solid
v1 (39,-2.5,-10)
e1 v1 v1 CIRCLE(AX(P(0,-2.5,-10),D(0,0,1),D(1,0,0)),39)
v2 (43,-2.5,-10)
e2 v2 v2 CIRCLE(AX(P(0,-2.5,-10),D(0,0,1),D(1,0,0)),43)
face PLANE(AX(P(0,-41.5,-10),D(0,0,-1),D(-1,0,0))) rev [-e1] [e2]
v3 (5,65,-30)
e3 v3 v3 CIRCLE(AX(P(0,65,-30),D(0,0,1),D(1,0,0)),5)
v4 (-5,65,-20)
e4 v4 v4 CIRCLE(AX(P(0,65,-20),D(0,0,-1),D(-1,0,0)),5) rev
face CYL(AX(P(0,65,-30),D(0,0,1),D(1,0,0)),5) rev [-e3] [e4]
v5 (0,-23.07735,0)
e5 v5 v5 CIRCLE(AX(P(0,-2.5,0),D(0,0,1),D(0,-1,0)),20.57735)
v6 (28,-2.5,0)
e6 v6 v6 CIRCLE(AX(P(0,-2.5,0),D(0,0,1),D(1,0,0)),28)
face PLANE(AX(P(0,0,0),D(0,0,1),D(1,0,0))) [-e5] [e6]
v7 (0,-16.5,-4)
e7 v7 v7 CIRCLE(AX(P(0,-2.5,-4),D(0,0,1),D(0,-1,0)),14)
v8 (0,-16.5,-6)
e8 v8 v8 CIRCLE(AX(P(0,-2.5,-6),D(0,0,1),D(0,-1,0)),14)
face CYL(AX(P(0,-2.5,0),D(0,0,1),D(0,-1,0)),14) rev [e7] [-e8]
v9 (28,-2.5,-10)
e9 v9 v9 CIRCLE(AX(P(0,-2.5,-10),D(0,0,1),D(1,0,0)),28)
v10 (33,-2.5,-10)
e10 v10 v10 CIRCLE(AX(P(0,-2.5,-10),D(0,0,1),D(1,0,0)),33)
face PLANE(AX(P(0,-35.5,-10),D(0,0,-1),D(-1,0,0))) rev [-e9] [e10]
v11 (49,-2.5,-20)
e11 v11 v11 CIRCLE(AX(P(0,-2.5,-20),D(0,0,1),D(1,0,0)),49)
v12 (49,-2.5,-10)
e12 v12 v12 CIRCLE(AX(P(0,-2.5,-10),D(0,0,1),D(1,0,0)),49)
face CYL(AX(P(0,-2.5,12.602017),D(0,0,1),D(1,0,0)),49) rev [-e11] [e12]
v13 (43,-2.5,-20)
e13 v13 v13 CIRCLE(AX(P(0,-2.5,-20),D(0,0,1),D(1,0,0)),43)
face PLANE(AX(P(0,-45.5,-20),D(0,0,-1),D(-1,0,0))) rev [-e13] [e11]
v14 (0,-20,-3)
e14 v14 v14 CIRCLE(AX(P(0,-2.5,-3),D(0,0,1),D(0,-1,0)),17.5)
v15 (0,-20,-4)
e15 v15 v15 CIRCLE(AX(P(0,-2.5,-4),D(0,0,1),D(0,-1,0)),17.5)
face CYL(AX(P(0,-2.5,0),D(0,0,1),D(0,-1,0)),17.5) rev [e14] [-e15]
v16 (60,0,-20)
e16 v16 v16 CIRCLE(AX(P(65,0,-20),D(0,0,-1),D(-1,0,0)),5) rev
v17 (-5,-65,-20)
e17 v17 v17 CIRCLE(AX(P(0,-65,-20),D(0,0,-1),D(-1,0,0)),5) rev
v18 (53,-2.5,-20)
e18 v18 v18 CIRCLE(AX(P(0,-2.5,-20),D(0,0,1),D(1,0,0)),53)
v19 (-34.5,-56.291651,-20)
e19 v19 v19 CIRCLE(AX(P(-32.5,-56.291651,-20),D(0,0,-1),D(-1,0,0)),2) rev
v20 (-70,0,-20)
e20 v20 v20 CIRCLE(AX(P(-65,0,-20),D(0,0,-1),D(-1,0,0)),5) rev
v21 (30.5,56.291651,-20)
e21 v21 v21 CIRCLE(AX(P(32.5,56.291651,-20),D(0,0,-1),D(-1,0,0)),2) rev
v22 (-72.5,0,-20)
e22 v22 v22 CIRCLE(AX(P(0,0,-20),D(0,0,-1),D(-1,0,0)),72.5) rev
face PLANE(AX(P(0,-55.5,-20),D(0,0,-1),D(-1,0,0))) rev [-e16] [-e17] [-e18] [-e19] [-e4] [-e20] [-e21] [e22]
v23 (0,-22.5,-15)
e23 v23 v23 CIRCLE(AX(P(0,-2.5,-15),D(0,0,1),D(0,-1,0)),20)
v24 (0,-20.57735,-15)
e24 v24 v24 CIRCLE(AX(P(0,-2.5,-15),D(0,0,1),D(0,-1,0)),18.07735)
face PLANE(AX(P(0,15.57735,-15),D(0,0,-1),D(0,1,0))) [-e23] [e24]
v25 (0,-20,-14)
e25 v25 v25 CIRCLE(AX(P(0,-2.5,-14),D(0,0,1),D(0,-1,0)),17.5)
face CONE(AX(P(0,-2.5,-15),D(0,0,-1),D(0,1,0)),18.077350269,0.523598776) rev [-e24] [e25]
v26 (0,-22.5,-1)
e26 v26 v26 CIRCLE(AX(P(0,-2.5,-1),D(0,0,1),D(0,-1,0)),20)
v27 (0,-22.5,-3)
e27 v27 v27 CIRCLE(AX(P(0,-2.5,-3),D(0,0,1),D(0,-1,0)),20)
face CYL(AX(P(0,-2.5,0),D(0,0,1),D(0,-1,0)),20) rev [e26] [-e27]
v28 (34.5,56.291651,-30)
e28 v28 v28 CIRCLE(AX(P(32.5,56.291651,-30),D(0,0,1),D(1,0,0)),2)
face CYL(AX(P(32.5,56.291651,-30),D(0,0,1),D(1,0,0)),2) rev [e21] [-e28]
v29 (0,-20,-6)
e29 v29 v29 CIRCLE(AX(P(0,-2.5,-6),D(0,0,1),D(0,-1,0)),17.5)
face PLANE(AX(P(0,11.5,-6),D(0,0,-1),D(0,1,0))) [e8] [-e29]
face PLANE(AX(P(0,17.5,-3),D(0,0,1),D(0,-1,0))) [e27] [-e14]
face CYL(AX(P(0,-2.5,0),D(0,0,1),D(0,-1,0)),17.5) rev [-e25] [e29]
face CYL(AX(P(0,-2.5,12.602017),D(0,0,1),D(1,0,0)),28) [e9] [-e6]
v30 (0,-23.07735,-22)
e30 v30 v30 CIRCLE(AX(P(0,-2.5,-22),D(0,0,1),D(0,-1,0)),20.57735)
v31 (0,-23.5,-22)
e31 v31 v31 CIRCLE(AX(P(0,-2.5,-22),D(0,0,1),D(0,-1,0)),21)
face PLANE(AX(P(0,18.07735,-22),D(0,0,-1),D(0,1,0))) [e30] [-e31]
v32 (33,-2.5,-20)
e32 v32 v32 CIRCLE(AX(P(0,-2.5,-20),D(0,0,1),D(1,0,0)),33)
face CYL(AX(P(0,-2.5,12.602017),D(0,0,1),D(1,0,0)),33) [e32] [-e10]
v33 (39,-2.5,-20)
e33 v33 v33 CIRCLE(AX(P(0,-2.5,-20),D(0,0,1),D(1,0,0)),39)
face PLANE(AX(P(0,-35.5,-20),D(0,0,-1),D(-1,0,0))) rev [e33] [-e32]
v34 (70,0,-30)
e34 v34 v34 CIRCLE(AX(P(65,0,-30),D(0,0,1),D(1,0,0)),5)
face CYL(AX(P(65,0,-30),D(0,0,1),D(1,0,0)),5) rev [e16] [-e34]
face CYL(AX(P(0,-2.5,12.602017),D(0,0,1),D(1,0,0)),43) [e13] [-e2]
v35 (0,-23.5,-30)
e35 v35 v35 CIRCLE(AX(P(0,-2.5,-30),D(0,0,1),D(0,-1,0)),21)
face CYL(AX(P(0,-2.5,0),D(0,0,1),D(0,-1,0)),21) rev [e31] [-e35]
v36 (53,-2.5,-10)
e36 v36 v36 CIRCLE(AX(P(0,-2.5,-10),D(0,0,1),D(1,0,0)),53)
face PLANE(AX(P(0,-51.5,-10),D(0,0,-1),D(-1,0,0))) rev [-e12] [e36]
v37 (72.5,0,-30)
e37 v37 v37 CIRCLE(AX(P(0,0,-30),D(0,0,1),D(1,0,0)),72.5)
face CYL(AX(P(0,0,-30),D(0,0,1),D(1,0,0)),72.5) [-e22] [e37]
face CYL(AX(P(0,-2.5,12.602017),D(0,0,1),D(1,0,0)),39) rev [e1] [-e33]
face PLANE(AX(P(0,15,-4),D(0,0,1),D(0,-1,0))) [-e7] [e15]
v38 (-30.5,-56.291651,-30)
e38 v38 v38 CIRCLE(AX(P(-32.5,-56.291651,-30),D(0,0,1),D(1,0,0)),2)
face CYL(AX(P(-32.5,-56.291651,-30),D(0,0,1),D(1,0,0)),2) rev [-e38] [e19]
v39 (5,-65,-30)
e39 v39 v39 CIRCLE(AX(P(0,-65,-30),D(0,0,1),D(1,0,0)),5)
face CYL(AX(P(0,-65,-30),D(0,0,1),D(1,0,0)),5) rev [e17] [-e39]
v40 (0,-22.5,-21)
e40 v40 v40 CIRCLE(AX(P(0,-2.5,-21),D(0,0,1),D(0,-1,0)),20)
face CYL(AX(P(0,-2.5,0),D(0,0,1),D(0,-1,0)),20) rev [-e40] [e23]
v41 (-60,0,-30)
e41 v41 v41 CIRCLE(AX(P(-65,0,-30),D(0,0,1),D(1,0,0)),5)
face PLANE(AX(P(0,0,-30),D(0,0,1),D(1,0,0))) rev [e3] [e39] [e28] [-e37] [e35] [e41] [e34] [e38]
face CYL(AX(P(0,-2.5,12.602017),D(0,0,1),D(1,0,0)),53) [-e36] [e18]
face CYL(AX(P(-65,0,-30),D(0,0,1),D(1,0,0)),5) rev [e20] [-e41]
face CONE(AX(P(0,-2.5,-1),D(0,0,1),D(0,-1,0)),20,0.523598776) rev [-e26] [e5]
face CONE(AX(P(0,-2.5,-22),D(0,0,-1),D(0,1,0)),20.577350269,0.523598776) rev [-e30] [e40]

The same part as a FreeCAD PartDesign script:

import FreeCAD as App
import Part
import Sketcher
Q = App.Units.Quantity


def add_polygon(sketch, points):
    """Adds a closed chain of lines whose ends are joined by coincident constraints."""
    first, n = sketch.GeometryCount, len(points)
    for a, b in zip(points, points[1:] + points[:1]):
        sketch.addGeometry(Part.LineSegment(App.Vector(*a, 0), App.Vector(*b, 0)), False)
    for i in range(n):
        sketch.addConstraint(Sketcher.Constraint("Coincident", first + i, 2, first + (i + 1) % n, 1))

doc = App.newDocument("Part")
params = doc.addObject("Spreadsheet::Sheet", "Params")
for row, (alias, value) in enumerate([
    ("sketch1_diameter", "145 mm"),
    ("sketch1_diameter2", "4 mm"),
    ("sketch1_diameter3", "10 mm"),
    ("pad1_length", "30 mm"),
    ("sketch2_width", "21 mm"),
    ("sketch2_height", "8 mm"),
    ("sketch2_height2", "2 mm"),
    ("sketch2_height3", "1 mm"),
    ("sketch2_height4", "30 mm"),
    ("groove_angle", "360 deg"),
    ("sketch3_width", "4 mm"),
    ("sketch3_width2", "6 mm"),
    ("sketch3_width3", "5 mm"),
    ("sketch3_width4", "52 mm"),
    ("sketch3_height", "10 mm"),
    ("groove2_angle", "360 deg"),
], start=1):
    params.set(f"A{row}", alias)
    params.set(f"B{row}", "=" + value)
    params.setAlias(f"B{row}", alias)

body = doc.addObject("PartDesign::Body", "Body")

sketch1 = body.newObject("Sketcher::SketchObject", "Sketch")
sketch1.AttachmentSupport = (doc.getObject("XY_Plane"), [""])
sketch1.MapMode = "FlatFace"
sketch1.addGeometry([
    Part.Circle(App.Vector(0, 0, 0), App.Vector(0, 0, 1), 72.5),
    Part.Circle(App.Vector(-32.5, -56.3, 0), App.Vector(0, 0, 1), 2),
    Part.Circle(App.Vector(0, -65, 0), App.Vector(0, 0, 1), 5),
    Part.Circle(App.Vector(-65, 0, 0), App.Vector(0, 0, 1), 5),
    Part.Circle(App.Vector(65, 0, 0), App.Vector(0, 0, 1), 5),
    Part.Circle(App.Vector(0, 65, 0), App.Vector(0, 0, 1), 5),
    Part.Circle(App.Vector(32.5, 56.3, 0), App.Vector(0, 0, 1), 2),
], False)
sketch1.addConstraint([
    Sketcher.Constraint("Coincident", 0, 3, -1, 1),
    Sketcher.Constraint("Equal", 2, 3),
    Sketcher.Constraint("Equal", 3, 4),
    Sketcher.Constraint("Equal", 4, 5),
    Sketcher.Constraint("Equal", 1, 6),
    Sketcher.Constraint("Symmetric", 3, 3, 4, 3, -1, 1),
    Sketcher.Constraint("Symmetric", 2, 3, 5, 3, -1, 1),
    Sketcher.Constraint("Symmetric", 1, 3, 6, 3, -1, 1),
    Sketcher.Constraint("PointOnObject", 2, 3, -2),
    Sketcher.Constraint("PointOnObject", 3, 3, -1),
    Sketcher.Constraint("Diameter", 0, Q("145 mm")),
    Sketcher.Constraint("Diameter", 1, Q("4 mm")),
    Sketcher.Constraint("Diameter", 2, Q("10 mm")),
    Sketcher.Constraint("DistanceY", 2, 3, -1, 1, Q("65 mm")),
    Sketcher.Constraint("DistanceX", 3, 3, -1, 1, Q("65 mm")),
    Sketcher.Constraint("DistanceX", 1, 3, -1, 1, Q("32.5 mm")),
    Sketcher.Constraint("DistanceY", 1, 3, -1, 1, Q("56.291651 mm")),
])
sketch1.setExpression("Constraints[10]", "Params.sketch1_diameter")
sketch1.setExpression("Constraints[11]", "Params.sketch1_diameter2")
sketch1.setExpression("Constraints[12]", "Params.sketch1_diameter3")
pad1 = body.newObject("PartDesign::Pad", "Pad")
pad1.Profile = sketch1
pad1.setExpression("Length", "Params.pad1_length")
pad1.Reversed = True

sketch2 = body.newObject("Sketcher::SketchObject", "Sketch001")
sketch2.AttachmentSupport = (doc.getObject("YZ_Plane"), [""])
sketch2.MapMode = "FlatFace"
add_polygon(sketch2, [(15.58, -15), (15, -14), (15, -6), (11.5, -6), (11.5, -4), (15, -4), (15, -3), (17.5, -3), (17.5, -1), (18.08, 0), (-2.5, 0), (-2.5, -30), (18.5, -30), (18.5, -22), (18.08, -22), (17.5, -21), (17.5, -15)])
sketch2.addGeometry(Part.LineSegment(App.Vector(-2.5, 0, 0), App.Vector(-2.5, -30, 0)), True)
sketch2.addConstraint([
    Sketcher.Constraint("Vertical", 1),
    Sketcher.Constraint("Horizontal", 2),
    Sketcher.Constraint("Vertical", 3),
    Sketcher.Constraint("Horizontal", 4),
    Sketcher.Constraint("Vertical", 5),
    Sketcher.Constraint("Horizontal", 6),
    Sketcher.Constraint("Vertical", 7),
    Sketcher.Constraint("Horizontal", 9),
    Sketcher.Constraint("Vertical", 10),
    Sketcher.Constraint("Horizontal", 11),
    Sketcher.Constraint("Vertical", 12),
    Sketcher.Constraint("Horizontal", 13),
    Sketcher.Constraint("Vertical", 15),
    Sketcher.Constraint("Horizontal", 16),
    Sketcher.Constraint("Vertical", 17),
    Sketcher.Constraint("Coincident", 17, 1, 9, 2),
    Sketcher.Constraint("PointOnObject", 8, 2, -1),
    Sketcher.Constraint("Parallel", 0, 14),
    Sketcher.Constraint("Horizontal", 11, 2, 17, 2),
    Sketcher.Constraint("Vertical", 1, 2, 4, 2),
    Sketcher.Constraint("Vertical", 8, 2, 13, 2),
    Sketcher.Constraint("Vertical", 7, 2, 14, 2),
    Sketcher.Constraint("Equal", 3, 7),
    Sketcher.Constraint("Equal", 1, 12),
    Sketcher.Constraint("Equal", 0, 8),
    Sketcher.Constraint("Equal", 8, 14),
    Sketcher.Constraint("DistanceX", 11, 1, 11, 2, Q("21 mm")),
    Sketcher.Constraint("DistanceY", 1, 1, 1, 2, Q("8 mm")),
    Sketcher.Constraint("DistanceY", 3, 1, 3, 2, Q("2 mm")),
    Sketcher.Constraint("DistanceY", 5, 1, 5, 2, Q("1 mm")),
    Sketcher.Constraint("DistanceY", 10, 2, 10, 1, Q("30 mm")),
    Sketcher.Constraint("DistanceY", 15, 1, 15, 2, Q("6 mm")),
    Sketcher.Constraint("Angle", 0, Q("120 deg")),
    Sketcher.Constraint("DistanceX", 2, 2, 2, 1, Q("3.5 mm")),
    Sketcher.Constraint("DistanceX", 6, 1, 6, 2, Q("2.5 mm")),
    Sketcher.Constraint("DistanceX", -1, 1, 0, 2, Q("15 mm")),
    Sketcher.Constraint("DistanceX", 9, 2, 3, 2, Q("14 mm")),
])
sketch2.setExpression("Constraints[43]", "Params.sketch2_width")
sketch2.setExpression("Constraints[44]", "Params.sketch2_height")
sketch2.setExpression("Constraints[45]", "Params.sketch2_height2")
sketch2.setExpression("Constraints[46]", "Params.sketch2_height3")
sketch2.setExpression("Constraints[47]", "Params.sketch2_height4")
groove = body.newObject("PartDesign::Groove", "Groove")
groove.Profile = sketch2
groove.ReferenceAxis = (sketch2, ["Axis0"])
groove.setExpression("Angle", "Params.groove_angle")

sketch3 = body.newObject("Sketcher::SketchObject", "Sketch002")
sketch3.AttachmentSupport = (doc.getObject("YZ_Plane"), [""])
sketch3.MapMode = "FlatFace"
add_polygon(sketch3, [(-45.5, -10), (-41.5, -10), (-41.5, -20), (-35.5, -20), (-35.5, -10), (-30.5, -10), (-30.5, 0), (-82.5, 0), (-82.5, -20), (-55.5, -20), (-55.5, -10), (-51.5, -10), (-51.5, -20), (-45.5, -20)])
sketch3.addGeometry(Part.LineSegment(App.Vector(-2.5, 0, 0), App.Vector(-2.5, -20, 0)), True)
sketch3.addConstraint([
    Sketcher.Constraint("Horizontal", 0),
    Sketcher.Constraint("Vertical", 1),
    Sketcher.Constraint("Horizontal", 2),
    Sketcher.Constraint("Vertical", 3),
    Sketcher.Constraint("Horizontal", 4),
    Sketcher.Constraint("Vertical", 5),
    Sketcher.Constraint("Horizontal", 6),
    Sketcher.Constraint("Vertical", 7),
    Sketcher.Constraint("Horizontal", 8),
    Sketcher.Constraint("Vertical", 9),
    Sketcher.Constraint("Horizontal", 10),
    Sketcher.Constraint("Vertical", 11),
    Sketcher.Constraint("Horizontal", 12),
    Sketcher.Constraint("Vertical", 13),
    Sketcher.Constraint("Vertical", 14),
    Sketcher.Constraint("PointOnObject", 5, 2, -1),
    Sketcher.Constraint("PointOnObject", 14, 1, -1),
    Sketcher.Constraint("Horizontal", 0, 2, 3, 2),
    Sketcher.Constraint("Horizontal", 2, 2, 7, 2),
    Sketcher.Constraint("Horizontal", 4, 2, 9, 2),
    Sketcher.Constraint("Horizontal", 8, 2, 11, 2),
    Sketcher.Constraint("Horizontal", 12, 2, 14, 2),
    Sketcher.Constraint("Equal", 0, 10),
    Sketcher.Constraint("Equal", 2, 12),
    Sketcher.Constraint("Equal", 3, 5),
    Sketcher.Constraint("DistanceX", 0, 1, 0, 2, Q("4 mm")),
    Sketcher.Constraint("DistanceX", 2, 1, 2, 2, Q("6 mm")),
    Sketcher.Constraint("DistanceX", 4, 1, 4, 2, Q("5 mm")),
    Sketcher.Constraint("DistanceX", 6, 2, 6, 1, Q("52 mm")),
    Sketcher.Constraint("DistanceY", 1, 2, 1, 1, Q("10 mm")),
    Sketcher.Constraint("DistanceX", 5, 2, 14, 1, Q("28 mm")),
    Sketcher.Constraint("DistanceX", 0, 2, -1, 1, Q("41.5 mm")),
])
sketch3.setExpression("Constraints[39]", "Params.sketch3_width")
sketch3.setExpression("Constraints[40]", "Params.sketch3_width2")
sketch3.setExpression("Constraints[41]", "Params.sketch3_width3")
sketch3.setExpression("Constraints[42]", "Params.sketch3_width4")
sketch3.setExpression("Constraints[43]", "Params.sketch3_height")
groove2 = body.newObject("PartDesign::Groove", "Groove001")
groove2.Profile = sketch3
groove2.ReferenceAxis = (sketch3, ["Axis0"])
groove2.setExpression("Angle", "Params.groove2_angle")

doc.recompute()
